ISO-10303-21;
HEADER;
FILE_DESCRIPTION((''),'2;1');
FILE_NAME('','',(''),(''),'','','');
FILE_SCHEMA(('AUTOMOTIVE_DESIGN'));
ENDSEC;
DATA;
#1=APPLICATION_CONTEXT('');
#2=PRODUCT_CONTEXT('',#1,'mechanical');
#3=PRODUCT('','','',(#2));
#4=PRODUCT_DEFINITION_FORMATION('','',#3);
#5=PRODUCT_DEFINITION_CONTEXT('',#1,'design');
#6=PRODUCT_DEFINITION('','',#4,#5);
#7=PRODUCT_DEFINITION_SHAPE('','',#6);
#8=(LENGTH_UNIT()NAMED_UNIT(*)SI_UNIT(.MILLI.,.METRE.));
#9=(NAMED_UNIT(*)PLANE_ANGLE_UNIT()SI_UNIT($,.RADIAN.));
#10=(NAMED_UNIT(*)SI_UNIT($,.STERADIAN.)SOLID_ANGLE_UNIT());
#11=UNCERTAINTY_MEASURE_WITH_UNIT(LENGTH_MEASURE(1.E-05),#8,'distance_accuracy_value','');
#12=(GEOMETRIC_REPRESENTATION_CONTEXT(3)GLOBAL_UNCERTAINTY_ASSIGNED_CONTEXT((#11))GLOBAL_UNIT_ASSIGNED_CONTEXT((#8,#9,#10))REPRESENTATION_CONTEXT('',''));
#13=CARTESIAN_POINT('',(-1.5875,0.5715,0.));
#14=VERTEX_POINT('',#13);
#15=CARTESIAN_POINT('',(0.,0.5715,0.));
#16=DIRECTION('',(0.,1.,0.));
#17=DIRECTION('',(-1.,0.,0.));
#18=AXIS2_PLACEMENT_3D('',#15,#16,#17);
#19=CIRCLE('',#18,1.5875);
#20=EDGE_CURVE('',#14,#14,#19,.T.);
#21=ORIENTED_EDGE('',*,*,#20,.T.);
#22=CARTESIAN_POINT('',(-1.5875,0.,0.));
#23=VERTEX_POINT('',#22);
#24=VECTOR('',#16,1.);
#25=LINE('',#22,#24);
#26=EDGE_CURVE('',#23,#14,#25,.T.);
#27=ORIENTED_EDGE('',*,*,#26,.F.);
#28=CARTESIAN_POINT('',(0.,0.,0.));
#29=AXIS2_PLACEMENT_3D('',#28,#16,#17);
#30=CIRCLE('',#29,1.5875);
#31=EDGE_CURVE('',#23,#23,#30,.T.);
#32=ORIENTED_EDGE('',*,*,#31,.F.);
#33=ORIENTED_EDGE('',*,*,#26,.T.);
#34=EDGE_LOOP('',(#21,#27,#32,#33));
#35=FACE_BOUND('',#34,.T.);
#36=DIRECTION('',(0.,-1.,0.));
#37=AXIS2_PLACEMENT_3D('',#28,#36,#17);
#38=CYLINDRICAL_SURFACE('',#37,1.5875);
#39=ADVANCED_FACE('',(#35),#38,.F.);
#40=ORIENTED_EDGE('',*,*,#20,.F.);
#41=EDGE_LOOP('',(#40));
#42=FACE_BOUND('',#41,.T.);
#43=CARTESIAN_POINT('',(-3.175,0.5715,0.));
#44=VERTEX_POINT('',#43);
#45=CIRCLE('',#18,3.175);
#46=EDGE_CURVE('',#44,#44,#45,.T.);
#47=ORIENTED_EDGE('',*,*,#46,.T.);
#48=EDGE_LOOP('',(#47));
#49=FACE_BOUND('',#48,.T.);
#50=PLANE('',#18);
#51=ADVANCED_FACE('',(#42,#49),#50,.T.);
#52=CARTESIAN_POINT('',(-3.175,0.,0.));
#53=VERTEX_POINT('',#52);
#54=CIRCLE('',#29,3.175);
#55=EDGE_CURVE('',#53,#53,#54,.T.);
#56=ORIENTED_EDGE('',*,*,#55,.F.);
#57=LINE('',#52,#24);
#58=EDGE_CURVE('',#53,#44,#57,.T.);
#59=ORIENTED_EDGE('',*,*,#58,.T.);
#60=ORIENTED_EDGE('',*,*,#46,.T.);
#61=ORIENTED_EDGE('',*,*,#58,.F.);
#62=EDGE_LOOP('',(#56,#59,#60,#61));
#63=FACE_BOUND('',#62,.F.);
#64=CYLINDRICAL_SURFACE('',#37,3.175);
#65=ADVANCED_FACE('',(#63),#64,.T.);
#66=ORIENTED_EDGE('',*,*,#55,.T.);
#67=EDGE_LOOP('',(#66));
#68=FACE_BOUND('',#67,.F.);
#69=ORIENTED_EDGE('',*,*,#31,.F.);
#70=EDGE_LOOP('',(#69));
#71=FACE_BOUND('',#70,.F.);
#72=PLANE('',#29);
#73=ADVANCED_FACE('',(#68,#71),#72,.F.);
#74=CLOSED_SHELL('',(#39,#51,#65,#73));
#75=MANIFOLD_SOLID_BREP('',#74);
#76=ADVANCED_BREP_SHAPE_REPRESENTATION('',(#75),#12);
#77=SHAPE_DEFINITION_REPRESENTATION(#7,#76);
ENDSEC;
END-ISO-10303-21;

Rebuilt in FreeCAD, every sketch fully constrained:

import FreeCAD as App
import Part
import Sketcher
Q = App.Units.Quantity

doc = App.newDocument("Part")
body = doc.addObject("PartDesign::Body", "Body")

sketch1 = doc.addObject("Sketcher::SketchObject", "Sketch")
body.addObject(sketch1)
sketch1.AttachmentSupport = (doc.XZ_Plane, [""])
sketch1.MapMode = "FlatFace"
sketch1.addGeometry([
    Part.Circle(App.Vector(0, 0, 0), App.Vector(0, 0, 1), 3.2),
    Part.Circle(App.Vector(0, 0, 0), App.Vector(0, 0, 1), 1.6),
], False)
sketch1.addConstraint([
    Sketcher.Constraint("Coincident", 0, 3, -1, 1),
    Sketcher.Constraint("Coincident", 1, 3, -1, 1),
    Sketcher.Constraint("Diameter", 0, Q("0.25 in")),
    Sketcher.Constraint("Diameter", 1, Q("0.125 in")),
])
pad1 = doc.addObject("PartDesign::Pad", "Pad")
body.addObject(pad1)
pad1.Profile = sketch1
pad1.Length = Q("0.0225 in")
pad1.Reversed = True

doc.recompute()
